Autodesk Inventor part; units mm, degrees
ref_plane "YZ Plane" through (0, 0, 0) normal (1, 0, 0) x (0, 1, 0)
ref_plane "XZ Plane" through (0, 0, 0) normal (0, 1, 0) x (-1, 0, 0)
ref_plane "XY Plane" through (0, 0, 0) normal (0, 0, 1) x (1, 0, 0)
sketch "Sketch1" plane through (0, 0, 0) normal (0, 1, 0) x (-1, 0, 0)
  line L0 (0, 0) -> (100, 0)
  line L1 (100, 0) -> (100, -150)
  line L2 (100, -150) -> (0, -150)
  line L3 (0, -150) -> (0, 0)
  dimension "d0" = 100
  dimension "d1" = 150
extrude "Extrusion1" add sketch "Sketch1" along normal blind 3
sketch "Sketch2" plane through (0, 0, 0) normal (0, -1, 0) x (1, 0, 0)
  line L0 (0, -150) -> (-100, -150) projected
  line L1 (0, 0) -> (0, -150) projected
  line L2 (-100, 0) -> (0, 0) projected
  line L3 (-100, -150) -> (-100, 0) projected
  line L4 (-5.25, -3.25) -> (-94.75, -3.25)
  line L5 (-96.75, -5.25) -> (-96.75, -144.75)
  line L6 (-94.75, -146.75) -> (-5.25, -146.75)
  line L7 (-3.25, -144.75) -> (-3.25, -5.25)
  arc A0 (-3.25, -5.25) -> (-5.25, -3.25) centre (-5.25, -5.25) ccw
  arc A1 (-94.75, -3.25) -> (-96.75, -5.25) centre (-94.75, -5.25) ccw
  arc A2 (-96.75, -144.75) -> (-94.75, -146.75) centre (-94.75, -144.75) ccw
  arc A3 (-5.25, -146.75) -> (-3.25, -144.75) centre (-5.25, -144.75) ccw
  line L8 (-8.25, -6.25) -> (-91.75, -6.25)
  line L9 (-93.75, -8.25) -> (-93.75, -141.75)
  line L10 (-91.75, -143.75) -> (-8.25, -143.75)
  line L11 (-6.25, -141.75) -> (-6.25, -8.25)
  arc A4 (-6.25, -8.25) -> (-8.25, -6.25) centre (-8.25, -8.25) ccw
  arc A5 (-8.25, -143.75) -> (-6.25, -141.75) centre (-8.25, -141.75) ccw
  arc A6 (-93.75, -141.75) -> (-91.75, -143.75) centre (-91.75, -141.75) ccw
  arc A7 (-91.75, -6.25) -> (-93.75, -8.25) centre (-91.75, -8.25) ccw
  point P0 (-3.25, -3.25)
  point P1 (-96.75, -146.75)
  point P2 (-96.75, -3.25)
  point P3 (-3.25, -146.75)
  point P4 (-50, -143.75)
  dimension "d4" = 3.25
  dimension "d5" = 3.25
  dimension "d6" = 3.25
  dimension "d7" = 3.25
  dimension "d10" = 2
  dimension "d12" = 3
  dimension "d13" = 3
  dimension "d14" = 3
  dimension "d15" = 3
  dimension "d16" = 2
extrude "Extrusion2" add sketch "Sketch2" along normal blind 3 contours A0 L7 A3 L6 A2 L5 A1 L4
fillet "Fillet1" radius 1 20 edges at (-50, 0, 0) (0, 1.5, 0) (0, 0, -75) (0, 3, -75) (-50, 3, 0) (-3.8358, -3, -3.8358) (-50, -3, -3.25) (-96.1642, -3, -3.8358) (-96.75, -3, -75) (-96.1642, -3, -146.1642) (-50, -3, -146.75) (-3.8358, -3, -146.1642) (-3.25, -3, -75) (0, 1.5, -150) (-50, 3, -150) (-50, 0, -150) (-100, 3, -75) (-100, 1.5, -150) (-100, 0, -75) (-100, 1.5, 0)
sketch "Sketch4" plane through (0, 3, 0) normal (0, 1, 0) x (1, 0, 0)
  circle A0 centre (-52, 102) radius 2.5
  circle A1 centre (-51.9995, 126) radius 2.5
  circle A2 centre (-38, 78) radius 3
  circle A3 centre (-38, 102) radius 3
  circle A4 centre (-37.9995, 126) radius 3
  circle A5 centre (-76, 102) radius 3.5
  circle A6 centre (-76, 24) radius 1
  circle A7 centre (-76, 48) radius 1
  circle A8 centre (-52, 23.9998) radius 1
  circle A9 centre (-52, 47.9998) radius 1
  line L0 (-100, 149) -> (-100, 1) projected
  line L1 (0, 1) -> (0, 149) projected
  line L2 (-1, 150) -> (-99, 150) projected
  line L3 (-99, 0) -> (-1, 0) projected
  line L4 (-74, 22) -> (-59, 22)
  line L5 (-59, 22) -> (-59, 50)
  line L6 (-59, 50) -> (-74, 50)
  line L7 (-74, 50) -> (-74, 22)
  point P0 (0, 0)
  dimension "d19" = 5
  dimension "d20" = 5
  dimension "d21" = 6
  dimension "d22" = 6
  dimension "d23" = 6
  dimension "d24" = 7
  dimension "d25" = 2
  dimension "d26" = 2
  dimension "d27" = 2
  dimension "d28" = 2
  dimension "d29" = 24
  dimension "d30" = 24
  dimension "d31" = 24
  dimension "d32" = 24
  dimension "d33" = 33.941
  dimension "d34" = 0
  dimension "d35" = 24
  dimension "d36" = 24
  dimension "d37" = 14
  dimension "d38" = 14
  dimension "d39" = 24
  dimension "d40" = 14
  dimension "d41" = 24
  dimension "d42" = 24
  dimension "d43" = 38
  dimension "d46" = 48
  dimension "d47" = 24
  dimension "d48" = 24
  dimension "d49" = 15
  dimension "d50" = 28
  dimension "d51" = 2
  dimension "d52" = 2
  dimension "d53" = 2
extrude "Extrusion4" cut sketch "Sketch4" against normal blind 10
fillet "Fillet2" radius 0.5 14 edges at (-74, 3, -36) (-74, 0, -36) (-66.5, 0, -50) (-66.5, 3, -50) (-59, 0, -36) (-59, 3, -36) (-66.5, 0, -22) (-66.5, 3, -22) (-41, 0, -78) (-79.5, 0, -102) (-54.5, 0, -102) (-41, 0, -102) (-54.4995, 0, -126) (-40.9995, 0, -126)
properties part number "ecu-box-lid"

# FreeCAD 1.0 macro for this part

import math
import FreeCAD as App
import Part
import Sketcher

V = App.Vector


def edges_at(feature, points):
    """Names of the edges that pass closest to the given points."""
    edges = feature.Shape.Edges
    near = lambda p: min(range(len(edges)), key=lambda i: edges[i].distToShape(Part.Vertex(*p))[0])
    return sorted({f"Edge{near(p) + 1}" for p in points})


def add_polygon(sketch, points):
    """Adds a closed chain of lines whose ends are joined by coincident constraints."""
    first, n = sketch.GeometryCount, len(points)
    for a, b in zip(points, points[1:] + points[:1]):
        sketch.addGeometry(Part.LineSegment(App.Vector(*a, 0), App.Vector(*b, 0)), False)
    for i in range(n):
        sketch.addConstraint(Sketcher.Constraint("Coincident", first + i, 2, first + (i + 1) % n, 1))

doc = App.newDocument("Part")
body = doc.addObject("PartDesign::Body", "Body")

# Sketch on XZ plane
sketch1 = body.newObject("Sketcher::SketchObject", "Sketch")
sketch1.AttachmentSupport = (doc.getObject("XZ_Plane"), [""])
sketch1.MapMode = "FlatFace"
add_polygon(sketch1, [(-100, 0), (0, 0), (0, -150), (-100, -150)])  # lines 0-3
sketch1.addConstraint([
    Sketcher.Constraint("Horizontal", 0),
    Sketcher.Constraint("Vertical", 1),
    Sketcher.Constraint("Horizontal", 2),
    Sketcher.Constraint("Vertical", 3),
    Sketcher.Constraint("Coincident", 0, 2, -1, 1),
    Sketcher.Constraint("DistanceX", 0, 1, 0, 2, 100.0),
    Sketcher.Constraint("DistanceY", 1, 2, 1, 1, 150.0),
])
pad1 = body.newObject("PartDesign::Pad", "Pad")
pad1.Profile = sketch1
pad1.Length = 3
pad1.Reversed = True

# Sketch on XZ plane
sketch2 = body.newObject("Sketcher::SketchObject", "Sketch001")
sketch2.AttachmentSupport = (doc.getObject("XZ_Plane"), [""])
sketch2.MapMode = "FlatFace"
sketch2.addGeometry([
    Part.ArcOfCircle(Part.Circle(V(-5.25, -5.25, 0), V(0, 0, 1), 2), math.radians(0), math.radians(90)),  # 0
    Part.LineSegment(V(-5.25, -3.25, 0), V(-94.75, -3.25, 0)),  # 1
    Part.ArcOfCircle(Part.Circle(V(-94.75, -5.25, 0), V(0, 0, 1), 2), math.radians(90), math.radians(180)),  # 2
    Part.LineSegment(V(-96.75, -5.25, 0), V(-96.75, -144.75, 0)),  # 3
    Part.ArcOfCircle(Part.Circle(V(-94.75, -144.75, 0), V(0, 0, 1), 2), math.radians(180), math.radians(270)),  # 4
    Part.LineSegment(V(-94.75, -146.75, 0), V(-5.25, -146.75, 0)),  # 5
    Part.ArcOfCircle(Part.Circle(V(-5.25, -144.75, 0), V(0, 0, 1), 2), math.radians(-90), math.radians(0)),  # 6
    Part.LineSegment(V(-3.25, -144.75, 0), V(-3.25, -5.25, 0)),  # 7
    Part.LineSegment(V(-91.75, -6.25, 0), V(-8.25, -6.25, 0)),  # 8
    Part.ArcOfCircle(Part.Circle(V(-8.25, -8.25, 0), V(0, 0, 1), 2), math.radians(0), math.radians(90)),  # 9
    Part.LineSegment(V(-6.25, -8.25, 0), V(-6.25, -141.75, 0)),  # 10
    Part.ArcOfCircle(Part.Circle(V(-8.25, -141.75, 0), V(0, 0, 1), 2), math.radians(-90), math.radians(0)),  # 11
    Part.LineSegment(V(-8.25, -143.75, 0), V(-91.75, -143.75, 0)),  # 12
    Part.ArcOfCircle(Part.Circle(V(-91.75, -141.75, 0), V(0, 0, 1), 2), math.radians(180), math.radians(270)),  # 13
    Part.LineSegment(V(-93.75, -141.75, 0), V(-93.75, -8.25, 0)),  # 14
    Part.ArcOfCircle(Part.Circle(V(-91.75, -8.25, 0), V(0, 0, 1), 2), math.radians(90), math.radians(180)),  # 15
], False)
sketch2.addConstraint([
    Sketcher.Constraint("Tangent", 0, 2, 1, 1),
    Sketcher.Constraint("Tangent", 1, 2, 2, 1),
    Sketcher.Constraint("Tangent", 2, 2, 3, 1),
    Sketcher.Constraint("Tangent", 3, 2, 4, 1),
    Sketcher.Constraint("Tangent", 4, 2, 5, 1),
    Sketcher.Constraint("Tangent", 5, 2, 6, 1),
    Sketcher.Constraint("Tangent", 6, 2, 7, 1),
    Sketcher.Constraint("Tangent", 7, 2, 0, 1),
    Sketcher.Constraint("Tangent", 8, 2, 9, 2),
    Sketcher.Constraint("Tangent", 9, 1, 10, 1),
    Sketcher.Constraint("Tangent", 10, 2, 11, 2),
    Sketcher.Constraint("Tangent", 11, 1, 12, 1),
    Sketcher.Constraint("Tangent", 12, 2, 13, 2),
    Sketcher.Constraint("Tangent", 13, 1, 14, 1),
    Sketcher.Constraint("Tangent", 14, 2, 15, 2),
    Sketcher.Constraint("Tangent", 15, 1, 8, 1),
    Sketcher.Constraint("Horizontal", 1),
    Sketcher.Constraint("Vertical", 3),
    Sketcher.Constraint("Horizontal", 5),
    Sketcher.Constraint("Vertical", 7),
    Sketcher.Constraint("Horizontal", 8),
    Sketcher.Constraint("Vertical", 10),
    Sketcher.Constraint("Horizontal", 12),
    Sketcher.Constraint("Vertical", 14),
    Sketcher.Constraint("Equal", 0, 2),
    Sketcher.Constraint("Equal", 2, 4),
    Sketcher.Constraint("Equal", 4, 6),
    Sketcher.Constraint("Equal", 6, 9),
    Sketcher.Constraint("Equal", 9, 11),
    Sketcher.Constraint("Equal", 11, 13),
    Sketcher.Constraint("Equal", 13, 15),
    Sketcher.Constraint("Radius", 0, 2.0),
    Sketcher.Constraint("DistanceX", 9, 3, 0, 3, 3.0),
    Sketcher.Constraint("DistanceY", 9, 3, 0, 3, 3.0),
    Sketcher.Constraint("DistanceY", 6, 3, 11, 3, 3.0),
    Sketcher.Constraint("DistanceX", 4, 3, 13, 3, 3.0),
    Sketcher.Constraint("DistanceY", 0, 2, -1, 1, 3.25),
    Sketcher.Constraint("DistanceX", 6, 2, -1, 1, 3.25),
    Sketcher.Constraint("DistanceX", 1, 2, 1, 1, 89.5),
    Sketcher.Constraint("DistanceY", 3, 2, 3, 1, 139.5),
])
pad2 = body.newObject("PartDesign::Pad", "Pad001")
pad2.Profile = sketch2
pad2.Length = 3
doc.recompute()

fillet = body.newObject("PartDesign::Fillet", "Fillet")
fillet.Base = (pad2, edges_at(pad2, [
    (-50, 0, 0),
    (0, 1.5, 0),
    (0, 0, -75),
    (0, 3, -75),
    (-50, 3, 0),
    (-3.836, -3, -3.836),
    (-50, -3, -3.25),
    (-96.164, -3, -3.836),
    (-96.75, -3, -75),
    (-96.164, -3, -146.164),
    (-50, -3, -146.75),
    (-3.836, -3, -146.164),
    (-3.25, -3, -75),
    (0, 1.5, -150),
    (-50, 3, -150),
    (-50, 0, -150),
    (-100, 3, -75),
    (-100, 1.5, -150),
    (-100, 0, -75),
    (-100, 1.5, 0),
]))
fillet.Radius = 1

# Sketch on XZ plane
sketch3 = body.newObject("Sketcher::SketchObject", "Sketch002")
sketch3.AttachmentSupport = (doc.getObject("XZ_Plane"), [""])
sketch3.MapMode = "FlatFace"
sketch3.AttachmentOffset = App.Placement(V(0, 0, -3), App.Rotation())
sketch3.addGeometry(Part.Circle(V(-52, -102, 0), V(0, 0, 1), 2.5), False)  # 0
sketch3.addGeometry(Part.Circle(V(-51.9995, -126, 0), V(0, 0, 1), 2.5), False)  # 1
sketch3.addGeometry(Part.Circle(V(-38, -78, 0), V(0, 0, 1), 3), False)  # 2
sketch3.addGeometry(Part.Circle(V(-38, -102, 0), V(0, 0, 1), 3), False)  # 3
sketch3.addGeometry(Part.Circle(V(-37.9995, -126, 0), V(0, 0, 1), 3), False)  # 4
sketch3.addGeometry(Part.Circle(V(-76, -102, 0), V(0, 0, 1), 3.5), False)  # 5
sketch3.addGeometry(Part.Circle(V(-76, -24, 0), V(0, 0, 1), 1), False)  # 6
sketch3.addGeometry(Part.Circle(V(-76, -48, 0), V(0, 0, 1), 1), False)  # 7
sketch3.addGeometry(Part.Circle(V(-52, -23.9998, 0), V(0, 0, 1), 1), False)  # 8
sketch3.addGeometry(Part.Circle(V(-52, -47.9998, 0), V(0, 0, 1), 1), False)  # 9
add_polygon(sketch3, [(-74, -50), (-74, -22), (-59, -22), (-59, -50)])  # lines 10-13
sketch3.addConstraint([
    Sketcher.Constraint("Vertical", 10),
    Sketcher.Constraint("Horizontal", 11),
    Sketcher.Constraint("Vertical", 12),
    Sketcher.Constraint("Horizontal", 13),
    Sketcher.Constraint("Equal", 0, 1),
    Sketcher.Constraint("Equal", 2, 3),
    Sketcher.Constraint("Equal", 3, 4),
    Sketcher.Constraint("Equal", 6, 7),
    Sketcher.Constraint("Equal", 7, 8),
    Sketcher.Constraint("Equal", 8, 9),
    Sketcher.Constraint("Horizontal", 0, 3, 3, 3),
    Sketcher.Constraint("Horizontal", 1, 3, 4, 3),
    Sketcher.Constraint("Horizontal", 3, 3, 5, 3),
    Sketcher.Constraint("Horizontal", 6, 3, 8, 3),
    Sketcher.Constraint("Horizontal", 7, 3, 9, 3),
    Sketcher.Constraint("Vertical", 2, 3, 3, 3),
    Sketcher.Constraint("Vertical", 5, 3, 6, 3),
    Sketcher.Constraint("Vertical", 6, 3, 7, 3),
    Sketcher.Constraint("Vertical", 0, 3, 8, 3),
    Sketcher.Constraint("Vertical", 8, 3, 9, 3),
    Sketcher.Constraint("Diameter", 0, 5.0),
    Sketcher.Constraint("Diameter", 2, 6.0),
    Sketcher.Constraint("Diameter", 5, 7.0),
    Sketcher.Constraint("Diameter", 6, 2.0),
    Sketcher.Constraint("DistanceX", 11, 1, 11, 2, 15.0),
    Sketcher.Constraint("DistanceY", 10, 1, 10, 2, 28.0),
    Sketcher.Constraint("DistanceX", 2, 3, -1, 1, 38.0),
    Sketcher.Constraint("DistanceY", 6, 3, -1, 1, 24.0),
    Sketcher.Constraint("DistanceY", 7, 3, -1, 1, 48.0),
    Sketcher.Constraint("DistanceY", 1, 3, 0, 3, 24.0),
    Sketcher.Constraint("DistanceX", 0, 3, 2, 3, 14.0),
    Sketcher.Constraint("DistanceY", 0, 3, 2, 3, 24.0),
    Sketcher.Constraint("DistanceX", 1, 3, 4, 3, 14.0),
    Sketcher.Constraint("DistanceX", 5, 3, 0, 3, 24.0),
    Sketcher.Constraint("DistanceX", 6, 3, 10, 2, 2.0),
    Sketcher.Constraint("DistanceY", 6, 3, 10, 2, 2.0),
    Sketcher.Constraint("DistanceY", 0, 3, -1, 1, 102.0),
    Sketcher.Constraint("DistanceX", 4, 3, -1, 1, 37.9995),
])
pocket1 = body.newObject("PartDesign::Pocket", "Pocket")
pocket1.Profile = sketch3
pocket1.Length = 10
pocket1.Reversed = True
doc.recompute()

fillet2 = body.newObject("PartDesign::Fillet", "Fillet001")
fillet2.Base = (pocket1, edges_at(pocket1, [
    (-74, 3, -36),
    (-74, 0, -36),
    (-66.5, 0, -50),
    (-66.5, 3, -50),
    (-59, 0, -36),
    (-59, 3, -36),
    (-66.5, 0, -22),
    (-66.5, 3, -22),
    (-41, 0, -78),
    (-79.5, 0, -102),
    (-54.5, 0, -102),
    (-41, 0, -102),
    (-54.499, 0, -126),
    (-40.999, 0, -126),
]))
fillet2.Radius = 0.5

doc.recompute()
